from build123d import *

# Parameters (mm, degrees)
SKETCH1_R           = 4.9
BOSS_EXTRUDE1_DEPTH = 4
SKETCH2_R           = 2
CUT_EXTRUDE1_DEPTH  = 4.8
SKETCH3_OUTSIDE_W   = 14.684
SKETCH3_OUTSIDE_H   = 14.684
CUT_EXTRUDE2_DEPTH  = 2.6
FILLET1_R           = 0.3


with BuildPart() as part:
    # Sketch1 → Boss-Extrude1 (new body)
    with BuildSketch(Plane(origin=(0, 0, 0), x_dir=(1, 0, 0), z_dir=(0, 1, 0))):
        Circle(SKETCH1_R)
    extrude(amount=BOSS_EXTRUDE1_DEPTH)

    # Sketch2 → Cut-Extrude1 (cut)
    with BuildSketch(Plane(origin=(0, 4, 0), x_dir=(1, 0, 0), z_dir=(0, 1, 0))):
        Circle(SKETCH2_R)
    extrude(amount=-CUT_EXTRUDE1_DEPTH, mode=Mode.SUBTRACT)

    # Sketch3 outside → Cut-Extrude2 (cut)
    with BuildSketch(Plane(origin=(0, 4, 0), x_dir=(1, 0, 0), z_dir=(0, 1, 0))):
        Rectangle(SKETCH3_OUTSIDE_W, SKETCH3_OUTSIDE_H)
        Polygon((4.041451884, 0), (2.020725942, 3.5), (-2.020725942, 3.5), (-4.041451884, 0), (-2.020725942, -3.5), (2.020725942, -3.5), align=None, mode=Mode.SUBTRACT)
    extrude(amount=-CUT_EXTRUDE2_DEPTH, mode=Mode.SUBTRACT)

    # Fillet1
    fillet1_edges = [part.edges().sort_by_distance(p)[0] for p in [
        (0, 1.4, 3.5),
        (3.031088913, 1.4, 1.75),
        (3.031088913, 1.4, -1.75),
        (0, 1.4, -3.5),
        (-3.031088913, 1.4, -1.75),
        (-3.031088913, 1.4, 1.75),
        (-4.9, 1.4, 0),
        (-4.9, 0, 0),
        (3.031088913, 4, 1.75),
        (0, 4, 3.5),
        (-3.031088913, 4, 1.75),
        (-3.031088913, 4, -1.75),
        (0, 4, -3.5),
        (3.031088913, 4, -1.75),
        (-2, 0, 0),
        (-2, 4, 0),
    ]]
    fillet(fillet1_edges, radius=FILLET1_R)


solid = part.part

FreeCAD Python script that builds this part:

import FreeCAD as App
import Part
import Sketcher

V = App.Vector
Q = App.Units.Quantity


def edges_at(feature, points):
    """Names of the edges that pass closest to the given points."""
    edges = feature.Shape.Edges
    near = lambda p: min(range(len(edges)), key=lambda i: edges[i].distToShape(Part.Vertex(*p))[0])
    return sorted({f"Edge{near(p) + 1}" for p in points})


def add_polygon(sketch, points):
    """Adds a closed chain of lines whose ends are joined by coincident constraints."""
    first, n = sketch.GeometryCount, len(points)
    for a, b in zip(points, points[1:] + points[:1]):
        sketch.addGeometry(Part.LineSegment(App.Vector(*a, 0), App.Vector(*b, 0)), False)
    for i in range(n):
        sketch.addConstraint(Sketcher.Constraint("Coincident", first + i, 2, first + (i + 1) % n, 1))

doc = App.newDocument("Part")
body = doc.addObject("PartDesign::Body", "Body")

# Sketch on XZ plane
sketch1 = body.newObject("Sketcher::SketchObject", "Sketch")
sketch1.AttachmentSupport = (doc.getObject("XZ_Plane"), [""])
sketch1.MapMode = "FlatFace"
sketch1.addGeometry(Part.Circle(V(0, 0, 0), V(0, 0, 1), 4.9), False)
sketch1.addConstraint([
    Sketcher.Constraint("Coincident", 0, 3, -1, 1),
    Sketcher.Constraint("Diameter", 0, Q("9.8 mm")),
])
pad1 = body.newObject("PartDesign::Pad", "Pad")
pad1.Profile = sketch1
pad1.Length = 4
pad1.Reversed = True

# Sketch on XZ plane
sketch2 = body.newObject("Sketcher::SketchObject", "Sketch001")
sketch2.AttachmentSupport = (doc.getObject("XZ_Plane"), [""])
sketch2.MapMode = "FlatFace"
sketch2.AttachmentOffset = App.Placement(V(0, 0, -4), App.Rotation())
sketch2.addGeometry(Part.Circle(V(0, 0, 0), V(0, 0, 1), 2), False)
sketch2.addConstraint([
    Sketcher.Constraint("Coincident", 0, 3, -1, 1),
    Sketcher.Constraint("Diameter", 0, Q("4 mm")),
])
pocket1 = body.newObject("PartDesign::Pocket", "Pocket")
pocket1.Profile = sketch2
pocket1.Length = 4.8
pocket1.Reversed = True

# Sketch on XZ plane
sketch3 = body.newObject("Sketcher::SketchObject", "Sketch002")
sketch3.AttachmentSupport = (doc.getObject("XZ_Plane"), [""])
sketch3.MapMode = "FlatFace"
sketch3.AttachmentOffset = App.Placement(V(0, 0, -4), App.Rotation())
add_polygon(sketch3, [(-7.3, -7.3), (-7.3, 7.3), (7.3, 7.3), (7.3, -7.3)])  # lines 0-3
add_polygon(sketch3, [(2, -3.5), (4, 0), (2, 3.5), (-2, 3.5), (-4, 0), (-2, -3.5)])  # lines 4-9
sketch3.addConstraint([
    Sketcher.Constraint("Vertical", 0),
    Sketcher.Constraint("Horizontal", 1),
    Sketcher.Constraint("Vertical", 2),
    Sketcher.Constraint("Horizontal", 3),
    Sketcher.Constraint("Horizontal", 6),
    Sketcher.Constraint("Horizontal", 9),
    Sketcher.Constraint("Symmetric", 0, 2, 2, 2, -1, 1),
    Sketcher.Constraint("Symmetric", 4, 2, 7, 2, -1, 1),
    Sketcher.Constraint("Symmetric", 5, 2, 8, 2, -1, 1),
    Sketcher.Constraint("PointOnObject", 4, 2, -1),
    Sketcher.Constraint("Parallel", 4, 7),
    Sketcher.Constraint("Vertical", 6, 2, 8, 2),
    Sketcher.Constraint("Equal", 3, 0),
    Sketcher.Constraint("Angle", 4, Q("60 deg")),
    Sketcher.Constraint("DistanceY", 8, 2, 6, 2, Q("7 mm")),
    Sketcher.Constraint("DistanceX", 1, 1, 1, 2, Q("14.684 mm")),
    Sketcher.Constraint("DistanceX", 6, 2, 6, 1, Q("4.041452 mm")),
])
pocket2 = body.newObject("PartDesign::Pocket", "Pocket001")
pocket2.Profile = sketch3
pocket2.Length = 2.6
pocket2.Reversed = True
doc.recompute()

fillet = body.newObject("PartDesign::Fillet", "Fillet")
fillet.Base = (pocket2, edges_at(pocket2, [
    (0, 1.4, 3.5),
    (3.031, 1.4, 1.75),
    (3.031, 1.4, -1.75),
    (0, 1.4, -3.5),
    (-3.031, 1.4, -1.75),
    (-3.031, 1.4, 1.75),
    (-4.9, 1.4, 0),
    (-4.9, 0, 0),
    (3.031, 4, 1.75),
    (0, 4, 3.5),
    (-3.031, 4, 1.75),
    (-3.031, 4, -1.75),
    (0, 4, -3.5),
    (3.031, 4, -1.75),
    (-2, 0, 0),
    (-2, 4, 0),
]))
fillet.Radius = 0.3

doc.recompute()
